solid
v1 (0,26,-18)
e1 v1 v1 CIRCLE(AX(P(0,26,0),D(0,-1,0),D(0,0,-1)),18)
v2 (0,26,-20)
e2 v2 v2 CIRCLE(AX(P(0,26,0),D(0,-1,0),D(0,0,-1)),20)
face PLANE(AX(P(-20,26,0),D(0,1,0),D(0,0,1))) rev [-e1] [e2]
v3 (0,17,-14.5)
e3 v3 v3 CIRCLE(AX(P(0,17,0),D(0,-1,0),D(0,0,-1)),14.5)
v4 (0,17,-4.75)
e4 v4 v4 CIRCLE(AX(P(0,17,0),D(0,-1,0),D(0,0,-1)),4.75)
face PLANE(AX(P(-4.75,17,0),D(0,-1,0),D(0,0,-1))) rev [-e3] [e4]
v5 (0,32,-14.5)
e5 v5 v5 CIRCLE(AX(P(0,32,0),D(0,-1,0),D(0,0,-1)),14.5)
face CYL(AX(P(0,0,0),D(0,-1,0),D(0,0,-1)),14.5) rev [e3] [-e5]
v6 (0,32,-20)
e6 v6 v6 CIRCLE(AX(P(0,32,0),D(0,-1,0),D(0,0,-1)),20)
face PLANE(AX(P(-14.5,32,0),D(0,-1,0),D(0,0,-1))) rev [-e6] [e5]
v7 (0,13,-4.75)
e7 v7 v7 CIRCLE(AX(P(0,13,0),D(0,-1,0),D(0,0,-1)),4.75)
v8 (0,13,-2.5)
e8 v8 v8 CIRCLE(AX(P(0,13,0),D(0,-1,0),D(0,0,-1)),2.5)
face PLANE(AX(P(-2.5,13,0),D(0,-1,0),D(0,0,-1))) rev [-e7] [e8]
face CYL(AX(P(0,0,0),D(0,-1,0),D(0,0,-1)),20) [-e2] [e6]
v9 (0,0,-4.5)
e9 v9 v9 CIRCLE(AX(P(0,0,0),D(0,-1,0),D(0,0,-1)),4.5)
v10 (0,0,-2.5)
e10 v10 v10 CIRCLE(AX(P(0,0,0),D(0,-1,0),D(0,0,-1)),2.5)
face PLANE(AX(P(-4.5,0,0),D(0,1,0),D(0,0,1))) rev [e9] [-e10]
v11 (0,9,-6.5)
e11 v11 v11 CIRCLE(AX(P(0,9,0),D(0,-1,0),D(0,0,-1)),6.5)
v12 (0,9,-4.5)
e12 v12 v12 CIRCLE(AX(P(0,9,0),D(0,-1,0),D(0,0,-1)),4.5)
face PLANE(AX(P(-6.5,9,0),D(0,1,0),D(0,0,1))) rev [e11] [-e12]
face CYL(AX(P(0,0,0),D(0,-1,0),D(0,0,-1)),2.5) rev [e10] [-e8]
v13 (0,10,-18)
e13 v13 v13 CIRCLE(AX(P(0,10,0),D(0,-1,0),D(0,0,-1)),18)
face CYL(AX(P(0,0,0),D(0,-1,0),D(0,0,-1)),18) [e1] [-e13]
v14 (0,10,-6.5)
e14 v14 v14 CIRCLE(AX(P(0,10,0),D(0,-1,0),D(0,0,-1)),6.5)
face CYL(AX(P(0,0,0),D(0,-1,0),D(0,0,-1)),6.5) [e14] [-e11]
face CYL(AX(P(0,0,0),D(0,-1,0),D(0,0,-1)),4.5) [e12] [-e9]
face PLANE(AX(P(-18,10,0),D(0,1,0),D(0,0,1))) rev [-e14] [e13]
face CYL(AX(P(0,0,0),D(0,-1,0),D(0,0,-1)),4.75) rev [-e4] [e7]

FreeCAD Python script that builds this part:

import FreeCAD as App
import Part
import Sketcher

V = App.Vector
Q = App.Units.Quantity


def add_polygon(sketch, points):
    """Adds a closed chain of lines whose ends are joined by coincident constraints."""
    first, n = sketch.GeometryCount, len(points)
    for a, b in zip(points, points[1:] + points[:1]):
        sketch.addGeometry(Part.LineSegment(App.Vector(*a, 0), App.Vector(*b, 0)), False)
    for i in range(n):
        sketch.addConstraint(Sketcher.Constraint("Coincident", first + i, 2, first + (i + 1) % n, 1))

doc = App.newDocument("Part")
body = doc.addObject("PartDesign::Body", "Body")

# Sketch on XY plane
sketch1 = body.newObject("Sketcher::SketchObject", "Sketch")
sketch1.AttachmentSupport = (doc.getObject("XY_Plane"), [""])
sketch1.MapMode = "FlatFace"
add_polygon(sketch1, [(-20, 32), (-20, 26), (-18, 26), (-18, 10), (-6.5, 10), (-6.5, 9), (-4.5, 9), (-4.5, 0), (-2.5, 0), (-2.5, 13), (-4.75, 13), (-4.75, 17), (-14.5, 17), (-14.5, 32)])  # lines 0-13
sketch1.addConstraint(Sketcher.Constraint("Vertical", 0))
sketch1.addConstraint(Sketcher.Constraint("Horizontal", 1))
sketch1.addConstraint(Sketcher.Constraint("Vertical", 2))
sketch1.addConstraint(Sketcher.Constraint("Horizontal", 3))
sketch1.addConstraint(Sketcher.Constraint("Vertical", 4))
sketch1.addConstraint(Sketcher.Constraint("Horizontal", 5))
sketch1.addConstraint(Sketcher.Constraint("Vertical", 6))
sketch1.addConstraint(Sketcher.Constraint("Horizontal", 7))
sketch1.addConstraint(Sketcher.Constraint("Vertical", 8))
sketch1.addConstraint(Sketcher.Constraint("Horizontal", 9))
sketch1.addConstraint(Sketcher.Constraint("Vertical", 10))
sketch1.addConstraint(Sketcher.Constraint("Horizontal", 11))
sketch1.addConstraint(Sketcher.Constraint("Vertical", 12))
sketch1.addConstraint(Sketcher.Constraint("Horizontal", 13))
sketch1.addConstraint(Sketcher.Constraint("PointOnObject", 6, 2, -1))
sketch1.addConstraint(Sketcher.Constraint("Equal", 1, 5))
sketch1.addConstraint(Sketcher.Constraint("Equal", 5, 7))
sketch1.addConstraint(Sketcher.Constraint("DistanceX", 1, 1, 1, 2, Q("2 mm")))
sketch1.addConstraint(Sketcher.Constraint("DistanceY", 0, 2, 0, 1, Q("6 mm")))
sketch1.addConstraint(Sketcher.Constraint("DistanceY", 2, 2, 2, 1, Q("16 mm")))
sketch1.addConstraint(Sketcher.Constraint("DistanceY", 4, 2, 4, 1, Q("1 mm")))
sketch1.addConstraint(Sketcher.Constraint("DistanceY", 6, 2, 6, 1, Q("9 mm")))
sketch1.addConstraint(Sketcher.Constraint("DistanceY", 8, 1, 8, 2, Q("13 mm")))
sketch1.addConstraint(Sketcher.Constraint("DistanceY", 10, 1, 10, 2, Q("4 mm")))
sketch1.addConstraint(Sketcher.Constraint("DistanceX", 3, 1, 3, 2, Q("11.5 mm")))
sketch1.addConstraint(Sketcher.Constraint("DistanceX", 13, 2, 13, 1, Q("5.5 mm")))
sketch1.addConstraint(Sketcher.Constraint("DistanceX", 0, 2, -1, 1, Q("20 mm")))
sketch1.addConstraint(Sketcher.Constraint("DistanceX", 9, 2, 9, 1, Q("2.25 mm")))
revolution = body.newObject("PartDesign::Revolution", "Revolution")
revolution.Profile = sketch1
revolution.ReferenceAxis = (sketch1, ["V_Axis"])
revolution.Angle = 360

doc.recompute()
